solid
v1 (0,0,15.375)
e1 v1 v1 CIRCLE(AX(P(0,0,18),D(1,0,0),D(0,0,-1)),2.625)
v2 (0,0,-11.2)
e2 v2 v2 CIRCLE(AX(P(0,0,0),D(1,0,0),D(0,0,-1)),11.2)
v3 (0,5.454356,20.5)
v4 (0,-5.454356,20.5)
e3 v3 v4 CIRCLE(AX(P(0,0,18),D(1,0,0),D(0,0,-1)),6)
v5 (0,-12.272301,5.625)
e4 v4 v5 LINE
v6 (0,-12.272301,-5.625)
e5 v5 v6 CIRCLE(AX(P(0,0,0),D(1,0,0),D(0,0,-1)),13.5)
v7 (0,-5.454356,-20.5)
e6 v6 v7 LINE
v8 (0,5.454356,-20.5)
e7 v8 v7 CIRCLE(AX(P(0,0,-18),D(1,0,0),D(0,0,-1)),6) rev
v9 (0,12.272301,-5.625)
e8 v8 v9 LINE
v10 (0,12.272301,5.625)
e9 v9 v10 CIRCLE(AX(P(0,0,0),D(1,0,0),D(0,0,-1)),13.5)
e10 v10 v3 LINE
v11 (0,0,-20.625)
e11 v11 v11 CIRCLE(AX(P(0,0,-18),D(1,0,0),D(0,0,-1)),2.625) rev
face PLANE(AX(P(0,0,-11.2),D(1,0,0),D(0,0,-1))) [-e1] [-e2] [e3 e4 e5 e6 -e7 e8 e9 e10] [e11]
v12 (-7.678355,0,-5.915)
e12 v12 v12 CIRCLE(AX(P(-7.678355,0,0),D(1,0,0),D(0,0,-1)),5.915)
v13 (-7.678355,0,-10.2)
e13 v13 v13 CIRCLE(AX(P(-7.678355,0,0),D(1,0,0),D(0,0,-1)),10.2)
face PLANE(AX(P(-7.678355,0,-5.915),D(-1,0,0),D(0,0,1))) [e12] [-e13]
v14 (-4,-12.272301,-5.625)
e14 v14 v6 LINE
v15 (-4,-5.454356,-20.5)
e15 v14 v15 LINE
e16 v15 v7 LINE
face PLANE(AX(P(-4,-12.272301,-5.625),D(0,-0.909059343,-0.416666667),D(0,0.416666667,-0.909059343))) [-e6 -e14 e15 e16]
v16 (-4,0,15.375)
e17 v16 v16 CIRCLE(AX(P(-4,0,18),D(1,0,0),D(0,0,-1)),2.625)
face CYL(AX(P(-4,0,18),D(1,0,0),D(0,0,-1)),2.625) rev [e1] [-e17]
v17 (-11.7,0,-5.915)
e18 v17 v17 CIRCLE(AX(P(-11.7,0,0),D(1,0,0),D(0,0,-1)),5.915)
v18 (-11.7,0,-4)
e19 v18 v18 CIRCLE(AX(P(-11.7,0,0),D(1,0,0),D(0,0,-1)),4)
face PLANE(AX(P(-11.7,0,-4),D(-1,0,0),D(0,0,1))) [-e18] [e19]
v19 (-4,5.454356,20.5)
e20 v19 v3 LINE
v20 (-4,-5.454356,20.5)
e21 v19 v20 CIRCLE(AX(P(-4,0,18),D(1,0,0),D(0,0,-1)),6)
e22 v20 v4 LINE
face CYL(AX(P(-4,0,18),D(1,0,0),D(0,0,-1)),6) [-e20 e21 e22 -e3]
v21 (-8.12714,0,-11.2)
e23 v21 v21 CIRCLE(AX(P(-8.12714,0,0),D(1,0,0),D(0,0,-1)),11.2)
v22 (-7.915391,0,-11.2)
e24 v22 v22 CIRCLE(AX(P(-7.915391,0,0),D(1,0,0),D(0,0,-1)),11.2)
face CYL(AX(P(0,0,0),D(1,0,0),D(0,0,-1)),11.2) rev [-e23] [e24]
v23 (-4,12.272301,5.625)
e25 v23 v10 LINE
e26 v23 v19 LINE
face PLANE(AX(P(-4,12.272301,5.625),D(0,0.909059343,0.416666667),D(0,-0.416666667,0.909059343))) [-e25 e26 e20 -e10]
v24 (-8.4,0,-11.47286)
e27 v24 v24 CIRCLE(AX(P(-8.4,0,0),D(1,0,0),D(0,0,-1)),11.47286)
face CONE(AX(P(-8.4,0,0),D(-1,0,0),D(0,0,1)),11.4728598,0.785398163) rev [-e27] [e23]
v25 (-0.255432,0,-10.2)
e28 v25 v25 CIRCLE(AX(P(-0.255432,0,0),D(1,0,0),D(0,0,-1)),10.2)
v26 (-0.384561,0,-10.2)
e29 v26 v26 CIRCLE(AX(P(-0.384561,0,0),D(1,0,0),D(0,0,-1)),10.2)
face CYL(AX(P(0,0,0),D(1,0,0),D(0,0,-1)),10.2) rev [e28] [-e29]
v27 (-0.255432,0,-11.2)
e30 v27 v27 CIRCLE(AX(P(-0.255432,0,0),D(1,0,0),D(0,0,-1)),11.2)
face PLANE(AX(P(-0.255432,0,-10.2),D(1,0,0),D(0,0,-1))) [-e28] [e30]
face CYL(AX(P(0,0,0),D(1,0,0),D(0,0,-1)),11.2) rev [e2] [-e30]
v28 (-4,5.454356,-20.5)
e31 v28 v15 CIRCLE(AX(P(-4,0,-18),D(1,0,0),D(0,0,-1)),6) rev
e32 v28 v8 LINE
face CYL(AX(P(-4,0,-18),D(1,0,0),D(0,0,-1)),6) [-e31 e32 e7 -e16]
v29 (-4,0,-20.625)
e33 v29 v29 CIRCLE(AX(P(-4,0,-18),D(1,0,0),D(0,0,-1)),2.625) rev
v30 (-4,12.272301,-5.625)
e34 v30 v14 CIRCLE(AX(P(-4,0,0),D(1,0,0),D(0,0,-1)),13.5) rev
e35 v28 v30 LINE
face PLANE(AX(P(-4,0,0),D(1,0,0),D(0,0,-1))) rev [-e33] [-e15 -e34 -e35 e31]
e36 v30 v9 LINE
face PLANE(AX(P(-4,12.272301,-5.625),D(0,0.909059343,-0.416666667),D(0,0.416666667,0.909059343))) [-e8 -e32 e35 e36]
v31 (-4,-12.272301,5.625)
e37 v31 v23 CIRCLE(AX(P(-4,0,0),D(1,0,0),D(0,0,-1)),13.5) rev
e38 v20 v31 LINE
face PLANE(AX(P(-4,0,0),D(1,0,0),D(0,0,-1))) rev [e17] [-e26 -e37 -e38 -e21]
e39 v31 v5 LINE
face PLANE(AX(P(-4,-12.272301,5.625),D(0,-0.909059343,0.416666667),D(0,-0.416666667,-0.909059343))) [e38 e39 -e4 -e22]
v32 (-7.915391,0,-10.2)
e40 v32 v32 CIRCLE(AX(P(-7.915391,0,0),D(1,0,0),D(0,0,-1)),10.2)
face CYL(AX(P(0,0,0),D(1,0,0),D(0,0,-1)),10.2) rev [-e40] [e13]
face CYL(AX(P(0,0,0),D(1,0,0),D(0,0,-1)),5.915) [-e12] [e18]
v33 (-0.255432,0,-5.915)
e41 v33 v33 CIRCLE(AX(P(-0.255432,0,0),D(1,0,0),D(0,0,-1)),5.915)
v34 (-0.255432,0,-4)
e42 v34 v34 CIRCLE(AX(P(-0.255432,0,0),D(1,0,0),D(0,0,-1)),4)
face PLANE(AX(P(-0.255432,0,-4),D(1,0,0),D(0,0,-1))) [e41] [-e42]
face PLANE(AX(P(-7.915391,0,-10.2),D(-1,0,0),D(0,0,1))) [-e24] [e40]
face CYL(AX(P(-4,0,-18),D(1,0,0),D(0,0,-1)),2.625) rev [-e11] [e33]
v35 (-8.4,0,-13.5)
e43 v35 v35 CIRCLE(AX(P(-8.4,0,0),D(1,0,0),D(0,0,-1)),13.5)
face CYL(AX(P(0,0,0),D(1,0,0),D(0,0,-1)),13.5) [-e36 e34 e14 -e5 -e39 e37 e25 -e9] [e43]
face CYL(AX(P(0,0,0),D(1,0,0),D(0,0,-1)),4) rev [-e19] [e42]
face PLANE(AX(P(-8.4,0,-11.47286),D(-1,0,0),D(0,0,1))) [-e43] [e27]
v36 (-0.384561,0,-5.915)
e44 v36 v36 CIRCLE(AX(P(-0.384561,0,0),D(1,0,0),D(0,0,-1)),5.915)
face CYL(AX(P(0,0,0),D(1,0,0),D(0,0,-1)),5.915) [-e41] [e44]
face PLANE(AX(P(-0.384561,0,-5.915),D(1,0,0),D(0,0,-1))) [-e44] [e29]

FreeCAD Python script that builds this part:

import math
import FreeCAD as App
import Part
import Sketcher
from FreeCAD import Vector
Q = App.Units.Quantity

doc = App.newDocument("Part")
body = doc.addObject("PartDesign::Body", "Body")

sketch1 = body.newObject("Sketcher::SketchObject", "Sketch")
sketch1.AttachmentSupport = (doc.getObject("XZ_Plane"), [""])
sketch1.MapMode = "FlatFace"
sketch1.addGeometry(Part.LineSegment(Vector(-11.7, -4, 0), Vector(-0.26, -4, 0)), False)
sketch1.addGeometry(Part.LineSegment(Vector(-0.26, -4, 0), Vector(-0.26, -5.92, 0)), False)
sketch1.addGeometry(Part.LineSegment(Vector(-0.26, -5.92, 0), Vector(-0.38, -5.92, 0)), False)
sketch1.addGeometry(Part.LineSegment(Vector(-0.38, -5.92, 0), Vector(-0.38, -10.2, 0)), False)
sketch1.addGeometry(Part.LineSegment(Vector(-0.38, -10.2, 0), Vector(-0.26, -10.2, 0)), False)
sketch1.addGeometry(Part.LineSegment(Vector(-0.26, -10.2, 0), Vector(-0.26, -11.2, 0)), False)
sketch1.addGeometry(Part.LineSegment(Vector(-0.26, -11.2, 0), Vector(0, -11.2, 0)), False)
sketch1.addGeometry(Part.LineSegment(Vector(0, -11.2, 0), Vector(0, -13.5, 0)), False)
sketch1.addGeometry(Part.LineSegment(Vector(0, -13.5, 0), Vector(-8.4, -13.5, 0)), False)
sketch1.addGeometry(Part.LineSegment(Vector(-8.4, -13.5, 0), Vector(-8.4, -11.47, 0)), False)
sketch1.addGeometry(Part.LineSegment(Vector(-8.4, -11.47, 0), Vector(-8.13, -11.2, 0)), False)
sketch1.addGeometry(Part.LineSegment(Vector(-8.13, -11.2, 0), Vector(-7.92, -11.2, 0)), False)
sketch1.addGeometry(Part.LineSegment(Vector(-7.92, -11.2, 0), Vector(-7.92, -10.2, 0)), False)
sketch1.addGeometry(Part.LineSegment(Vector(-7.92, -10.2, 0), Vector(-7.68, -10.2, 0)), False)
sketch1.addGeometry(Part.LineSegment(Vector(-7.68, -10.2, 0), Vector(-7.68, -5.92, 0)), False)
sketch1.addGeometry(Part.LineSegment(Vector(-7.68, -5.92, 0), Vector(-11.7, -5.92, 0)), False)
sketch1.addGeometry(Part.LineSegment(Vector(-11.7, -5.92, 0), Vector(-11.7, -4, 0)), False)
sketch1.addConstraint(Sketcher.Constraint("Coincident", 0, 2, 1, 1))
sketch1.addConstraint(Sketcher.Constraint("Coincident", 1, 2, 2, 1))
sketch1.addConstraint(Sketcher.Constraint("Coincident", 2, 2, 3, 1))
sketch1.addConstraint(Sketcher.Constraint("Coincident", 3, 2, 4, 1))
sketch1.addConstraint(Sketcher.Constraint("Coincident", 4, 2, 5, 1))
sketch1.addConstraint(Sketcher.Constraint("Coincident", 5, 2, 6, 1))
sketch1.addConstraint(Sketcher.Constraint("Coincident", 6, 2, 7, 1))
sketch1.addConstraint(Sketcher.Constraint("Coincident", 7, 2, 8, 1))
sketch1.addConstraint(Sketcher.Constraint("Coincident", 8, 2, 9, 1))
sketch1.addConstraint(Sketcher.Constraint("Coincident", 9, 2, 10, 1))
sketch1.addConstraint(Sketcher.Constraint("Coincident", 10, 2, 11, 1))
sketch1.addConstraint(Sketcher.Constraint("Coincident", 11, 2, 12, 1))
sketch1.addConstraint(Sketcher.Constraint("Coincident", 12, 2, 13, 1))
sketch1.addConstraint(Sketcher.Constraint("Coincident", 13, 2, 14, 1))
sketch1.addConstraint(Sketcher.Constraint("Coincident", 14, 2, 15, 1))
sketch1.addConstraint(Sketcher.Constraint("Coincident", 15, 2, 16, 1))
sketch1.addConstraint(Sketcher.Constraint("Coincident", 16, 2, 0, 1))
sketch1.addConstraint(Sketcher.Constraint("Horizontal", 0))
sketch1.addConstraint(Sketcher.Constraint("Vertical", 1))
sketch1.addConstraint(Sketcher.Constraint("Horizontal", 2))
sketch1.addConstraint(Sketcher.Constraint("Vertical", 3))
sketch1.addConstraint(Sketcher.Constraint("Horizontal", 4))
sketch1.addConstraint(Sketcher.Constraint("Vertical", 5))
sketch1.addConstraint(Sketcher.Constraint("Horizontal", 6))
sketch1.addConstraint(Sketcher.Constraint("Vertical", 7))
sketch1.addConstraint(Sketcher.Constraint("Horizontal", 8))
sketch1.addConstraint(Sketcher.Constraint("Vertical", 9))
sketch1.addConstraint(Sketcher.Constraint("Horizontal", 11))
sketch1.addConstraint(Sketcher.Constraint("Vertical", 12))
sketch1.addConstraint(Sketcher.Constraint("Horizontal", 13))
sketch1.addConstraint(Sketcher.Constraint("Vertical", 14))
sketch1.addConstraint(Sketcher.Constraint("Horizontal", 15))
sketch1.addConstraint(Sketcher.Constraint("Vertical", 16))
sketch1.addConstraint(Sketcher.Constraint("PointOnObject", 6, 2, -2))
sketch1.addConstraint(Sketcher.Constraint("Horizontal", 6, 2, 10, 2))
sketch1.addConstraint(Sketcher.Constraint("Horizontal", 4, 2, 12, 2))
sketch1.addConstraint(Sketcher.Constraint("Horizontal", 2, 2, 14, 2))
sketch1.addConstraint(Sketcher.Constraint("Vertical", 1, 2, 4, 2))
sketch1.addConstraint(Sketcher.Constraint("DistanceY", 5, 2, 5, 1, 1.0))
sketch1.addConstraint(Sketcher.Constraint("Angle", 10, Q("45 deg")))
sketch1.addConstraint(Sketcher.Constraint("DistanceX", 8, 2, 8, 1, 8.4))
sketch1.addConstraint(Sketcher.Constraint("DistanceY", 7, 2, 7, 1, 2.3))
sketch1.addConstraint(Sketcher.Constraint("DistanceY", 0, 2, -1, 1, 4.0))
sketch1.addConstraint(Sketcher.Constraint("DistanceY", 3, 2, -1, 1, 10.2))
sketch1.addConstraint(Sketcher.Constraint("DistanceX", 15, 2, -1, 1, 11.7))
sketch1.addConstraint(Sketcher.Constraint("DistanceY", 1, 2, 1, 1, 1.915))
sketch1.addConstraint(Sketcher.Constraint("DistanceX", 0, 1, 0, 2, 11.444568))
sketch1.addConstraint(Sketcher.Constraint("DistanceX", 2, 2, 2, 1, 0.12913))
sketch1.addConstraint(Sketcher.Constraint("DistanceX", 11, 1, 11, 2, 0.21175))
sketch1.addConstraint(Sketcher.Constraint("DistanceY", 9, 1, 9, 2, 2.02714))
sketch1.addConstraint(Sketcher.Constraint("DistanceX", 13, 1, 13, 2, 0.237036))
revolution = body.newObject("PartDesign::Revolution", "Revolution")
revolution.Profile = sketch1
revolution.ReferenceAxis = (sketch1, ["H_Axis"])
revolution.Angle = 360

sketch2 = body.newObject("Sketcher::SketchObject", "Sketch001")
sketch2.AttachmentSupport = (doc.getObject("YZ_Plane"), [""])
sketch2.MapMode = "FlatFace"
sketch2.addGeometry(Part.ArcOfCircle(Part.Circle(Vector(0, -18, 0), Vector(0, 0, 1), 6), math.radians(-155), math.radians(-25)), False)
sketch2.addGeometry(Part.LineSegment(Vector(5.5, -20.5, 0), Vector(12.3, -5.6, 0)), False)
sketch2.addGeometry(Part.ArcOfCircle(Part.Circle(Vector(0, 0, 0), Vector(0, 0, 1), 13.5), math.radians(-25), math.radians(25)), False)
sketch2.addGeometry(Part.LineSegment(Vector(12.3, 5.6, 0), Vector(5.5, 20.5, 0)), False)
sketch2.addGeometry(Part.ArcOfCircle(Part.Circle(Vector(0, 18, 0), Vector(0, 0, 1), 6), math.radians(25), math.radians(155)), False)
sketch2.addGeometry(Part.LineSegment(Vector(-5.5, 20.5, 0), Vector(-12.3, 5.6, 0)), False)
sketch2.addGeometry(Part.ArcOfCircle(Part.Circle(Vector(0, 0, 0), Vector(0, 0, 1), 13.5), math.radians(155), math.radians(205)), False)
sketch2.addGeometry(Part.LineSegment(Vector(-12.3, -5.6, 0), Vector(-5.5, -20.5, 0)), False)
sketch2.addGeometry(Part.Circle(Vector(0, -18, 0), Vector(0, 0, 1), 2.6), False)
sketch2.addGeometry(Part.Circle(Vector(0, 0, 0), Vector(0, 0, 1), 11.2), False)
sketch2.addGeometry(Part.Circle(Vector(0, 18, 0), Vector(0, 0, 1), 2.6), False)
sketch2.addConstraint(Sketcher.Constraint("Tangent", 0, 2, 1, 1))
sketch2.addConstraint(Sketcher.Constraint("Tangent", 1, 2, 2, 1))
sketch2.addConstraint(Sketcher.Constraint("Tangent", 2, 2, 3, 1))
sketch2.addConstraint(Sketcher.Constraint("Tangent", 3, 2, 4, 1))
sketch2.addConstraint(Sketcher.Constraint("Tangent", 4, 2, 5, 1))
sketch2.addConstraint(Sketcher.Constraint("Tangent", 5, 2, 6, 1))
sketch2.addConstraint(Sketcher.Constraint("Tangent", 6, 2, 7, 1))
sketch2.addConstraint(Sketcher.Constraint("Tangent", 7, 2, 0, 1))
sketch2.addConstraint(Sketcher.Constraint("Coincident", 2, 3, -1, 1))
sketch2.addConstraint(Sketcher.Constraint("Coincident", 6, 3, -1, 1))
sketch2.addConstraint(Sketcher.Constraint("Coincident", 9, 3, -1, 1))
sketch2.addConstraint(Sketcher.Constraint("Coincident", 8, 3, 0, 3))
sketch2.addConstraint(Sketcher.Constraint("Coincident", 10, 3, 4, 3))
sketch2.addConstraint(Sketcher.Constraint("Equal", 0, 4))
sketch2.addConstraint(Sketcher.Constraint("Equal", 2, 6))
sketch2.addConstraint(Sketcher.Constraint("Equal", 8, 10))
sketch2.addConstraint(Sketcher.Constraint("Symmetric", 0, 3, 4, 3, -1, 1))
sketch2.addConstraint(Sketcher.Constraint("PointOnObject", 0, 3, -2))
sketch2.addConstraint(Sketcher.Constraint("Radius", 0, 6.0))
sketch2.addConstraint(Sketcher.Constraint("Diameter", 9, 22.4))
sketch2.addConstraint(Sketcher.Constraint("Radius", 2, 13.5))
sketch2.addConstraint(Sketcher.Constraint("Diameter", 8, 5.25))
sketch2.addConstraint(Sketcher.Constraint("DistanceY", 0, 3, -1, 1, 18.0))
pad1 = body.newObject("PartDesign::Pad", "Pad")
pad1.Profile = sketch2
pad1.Length = 4
pad1.Reversed = True

doc.recompute()
